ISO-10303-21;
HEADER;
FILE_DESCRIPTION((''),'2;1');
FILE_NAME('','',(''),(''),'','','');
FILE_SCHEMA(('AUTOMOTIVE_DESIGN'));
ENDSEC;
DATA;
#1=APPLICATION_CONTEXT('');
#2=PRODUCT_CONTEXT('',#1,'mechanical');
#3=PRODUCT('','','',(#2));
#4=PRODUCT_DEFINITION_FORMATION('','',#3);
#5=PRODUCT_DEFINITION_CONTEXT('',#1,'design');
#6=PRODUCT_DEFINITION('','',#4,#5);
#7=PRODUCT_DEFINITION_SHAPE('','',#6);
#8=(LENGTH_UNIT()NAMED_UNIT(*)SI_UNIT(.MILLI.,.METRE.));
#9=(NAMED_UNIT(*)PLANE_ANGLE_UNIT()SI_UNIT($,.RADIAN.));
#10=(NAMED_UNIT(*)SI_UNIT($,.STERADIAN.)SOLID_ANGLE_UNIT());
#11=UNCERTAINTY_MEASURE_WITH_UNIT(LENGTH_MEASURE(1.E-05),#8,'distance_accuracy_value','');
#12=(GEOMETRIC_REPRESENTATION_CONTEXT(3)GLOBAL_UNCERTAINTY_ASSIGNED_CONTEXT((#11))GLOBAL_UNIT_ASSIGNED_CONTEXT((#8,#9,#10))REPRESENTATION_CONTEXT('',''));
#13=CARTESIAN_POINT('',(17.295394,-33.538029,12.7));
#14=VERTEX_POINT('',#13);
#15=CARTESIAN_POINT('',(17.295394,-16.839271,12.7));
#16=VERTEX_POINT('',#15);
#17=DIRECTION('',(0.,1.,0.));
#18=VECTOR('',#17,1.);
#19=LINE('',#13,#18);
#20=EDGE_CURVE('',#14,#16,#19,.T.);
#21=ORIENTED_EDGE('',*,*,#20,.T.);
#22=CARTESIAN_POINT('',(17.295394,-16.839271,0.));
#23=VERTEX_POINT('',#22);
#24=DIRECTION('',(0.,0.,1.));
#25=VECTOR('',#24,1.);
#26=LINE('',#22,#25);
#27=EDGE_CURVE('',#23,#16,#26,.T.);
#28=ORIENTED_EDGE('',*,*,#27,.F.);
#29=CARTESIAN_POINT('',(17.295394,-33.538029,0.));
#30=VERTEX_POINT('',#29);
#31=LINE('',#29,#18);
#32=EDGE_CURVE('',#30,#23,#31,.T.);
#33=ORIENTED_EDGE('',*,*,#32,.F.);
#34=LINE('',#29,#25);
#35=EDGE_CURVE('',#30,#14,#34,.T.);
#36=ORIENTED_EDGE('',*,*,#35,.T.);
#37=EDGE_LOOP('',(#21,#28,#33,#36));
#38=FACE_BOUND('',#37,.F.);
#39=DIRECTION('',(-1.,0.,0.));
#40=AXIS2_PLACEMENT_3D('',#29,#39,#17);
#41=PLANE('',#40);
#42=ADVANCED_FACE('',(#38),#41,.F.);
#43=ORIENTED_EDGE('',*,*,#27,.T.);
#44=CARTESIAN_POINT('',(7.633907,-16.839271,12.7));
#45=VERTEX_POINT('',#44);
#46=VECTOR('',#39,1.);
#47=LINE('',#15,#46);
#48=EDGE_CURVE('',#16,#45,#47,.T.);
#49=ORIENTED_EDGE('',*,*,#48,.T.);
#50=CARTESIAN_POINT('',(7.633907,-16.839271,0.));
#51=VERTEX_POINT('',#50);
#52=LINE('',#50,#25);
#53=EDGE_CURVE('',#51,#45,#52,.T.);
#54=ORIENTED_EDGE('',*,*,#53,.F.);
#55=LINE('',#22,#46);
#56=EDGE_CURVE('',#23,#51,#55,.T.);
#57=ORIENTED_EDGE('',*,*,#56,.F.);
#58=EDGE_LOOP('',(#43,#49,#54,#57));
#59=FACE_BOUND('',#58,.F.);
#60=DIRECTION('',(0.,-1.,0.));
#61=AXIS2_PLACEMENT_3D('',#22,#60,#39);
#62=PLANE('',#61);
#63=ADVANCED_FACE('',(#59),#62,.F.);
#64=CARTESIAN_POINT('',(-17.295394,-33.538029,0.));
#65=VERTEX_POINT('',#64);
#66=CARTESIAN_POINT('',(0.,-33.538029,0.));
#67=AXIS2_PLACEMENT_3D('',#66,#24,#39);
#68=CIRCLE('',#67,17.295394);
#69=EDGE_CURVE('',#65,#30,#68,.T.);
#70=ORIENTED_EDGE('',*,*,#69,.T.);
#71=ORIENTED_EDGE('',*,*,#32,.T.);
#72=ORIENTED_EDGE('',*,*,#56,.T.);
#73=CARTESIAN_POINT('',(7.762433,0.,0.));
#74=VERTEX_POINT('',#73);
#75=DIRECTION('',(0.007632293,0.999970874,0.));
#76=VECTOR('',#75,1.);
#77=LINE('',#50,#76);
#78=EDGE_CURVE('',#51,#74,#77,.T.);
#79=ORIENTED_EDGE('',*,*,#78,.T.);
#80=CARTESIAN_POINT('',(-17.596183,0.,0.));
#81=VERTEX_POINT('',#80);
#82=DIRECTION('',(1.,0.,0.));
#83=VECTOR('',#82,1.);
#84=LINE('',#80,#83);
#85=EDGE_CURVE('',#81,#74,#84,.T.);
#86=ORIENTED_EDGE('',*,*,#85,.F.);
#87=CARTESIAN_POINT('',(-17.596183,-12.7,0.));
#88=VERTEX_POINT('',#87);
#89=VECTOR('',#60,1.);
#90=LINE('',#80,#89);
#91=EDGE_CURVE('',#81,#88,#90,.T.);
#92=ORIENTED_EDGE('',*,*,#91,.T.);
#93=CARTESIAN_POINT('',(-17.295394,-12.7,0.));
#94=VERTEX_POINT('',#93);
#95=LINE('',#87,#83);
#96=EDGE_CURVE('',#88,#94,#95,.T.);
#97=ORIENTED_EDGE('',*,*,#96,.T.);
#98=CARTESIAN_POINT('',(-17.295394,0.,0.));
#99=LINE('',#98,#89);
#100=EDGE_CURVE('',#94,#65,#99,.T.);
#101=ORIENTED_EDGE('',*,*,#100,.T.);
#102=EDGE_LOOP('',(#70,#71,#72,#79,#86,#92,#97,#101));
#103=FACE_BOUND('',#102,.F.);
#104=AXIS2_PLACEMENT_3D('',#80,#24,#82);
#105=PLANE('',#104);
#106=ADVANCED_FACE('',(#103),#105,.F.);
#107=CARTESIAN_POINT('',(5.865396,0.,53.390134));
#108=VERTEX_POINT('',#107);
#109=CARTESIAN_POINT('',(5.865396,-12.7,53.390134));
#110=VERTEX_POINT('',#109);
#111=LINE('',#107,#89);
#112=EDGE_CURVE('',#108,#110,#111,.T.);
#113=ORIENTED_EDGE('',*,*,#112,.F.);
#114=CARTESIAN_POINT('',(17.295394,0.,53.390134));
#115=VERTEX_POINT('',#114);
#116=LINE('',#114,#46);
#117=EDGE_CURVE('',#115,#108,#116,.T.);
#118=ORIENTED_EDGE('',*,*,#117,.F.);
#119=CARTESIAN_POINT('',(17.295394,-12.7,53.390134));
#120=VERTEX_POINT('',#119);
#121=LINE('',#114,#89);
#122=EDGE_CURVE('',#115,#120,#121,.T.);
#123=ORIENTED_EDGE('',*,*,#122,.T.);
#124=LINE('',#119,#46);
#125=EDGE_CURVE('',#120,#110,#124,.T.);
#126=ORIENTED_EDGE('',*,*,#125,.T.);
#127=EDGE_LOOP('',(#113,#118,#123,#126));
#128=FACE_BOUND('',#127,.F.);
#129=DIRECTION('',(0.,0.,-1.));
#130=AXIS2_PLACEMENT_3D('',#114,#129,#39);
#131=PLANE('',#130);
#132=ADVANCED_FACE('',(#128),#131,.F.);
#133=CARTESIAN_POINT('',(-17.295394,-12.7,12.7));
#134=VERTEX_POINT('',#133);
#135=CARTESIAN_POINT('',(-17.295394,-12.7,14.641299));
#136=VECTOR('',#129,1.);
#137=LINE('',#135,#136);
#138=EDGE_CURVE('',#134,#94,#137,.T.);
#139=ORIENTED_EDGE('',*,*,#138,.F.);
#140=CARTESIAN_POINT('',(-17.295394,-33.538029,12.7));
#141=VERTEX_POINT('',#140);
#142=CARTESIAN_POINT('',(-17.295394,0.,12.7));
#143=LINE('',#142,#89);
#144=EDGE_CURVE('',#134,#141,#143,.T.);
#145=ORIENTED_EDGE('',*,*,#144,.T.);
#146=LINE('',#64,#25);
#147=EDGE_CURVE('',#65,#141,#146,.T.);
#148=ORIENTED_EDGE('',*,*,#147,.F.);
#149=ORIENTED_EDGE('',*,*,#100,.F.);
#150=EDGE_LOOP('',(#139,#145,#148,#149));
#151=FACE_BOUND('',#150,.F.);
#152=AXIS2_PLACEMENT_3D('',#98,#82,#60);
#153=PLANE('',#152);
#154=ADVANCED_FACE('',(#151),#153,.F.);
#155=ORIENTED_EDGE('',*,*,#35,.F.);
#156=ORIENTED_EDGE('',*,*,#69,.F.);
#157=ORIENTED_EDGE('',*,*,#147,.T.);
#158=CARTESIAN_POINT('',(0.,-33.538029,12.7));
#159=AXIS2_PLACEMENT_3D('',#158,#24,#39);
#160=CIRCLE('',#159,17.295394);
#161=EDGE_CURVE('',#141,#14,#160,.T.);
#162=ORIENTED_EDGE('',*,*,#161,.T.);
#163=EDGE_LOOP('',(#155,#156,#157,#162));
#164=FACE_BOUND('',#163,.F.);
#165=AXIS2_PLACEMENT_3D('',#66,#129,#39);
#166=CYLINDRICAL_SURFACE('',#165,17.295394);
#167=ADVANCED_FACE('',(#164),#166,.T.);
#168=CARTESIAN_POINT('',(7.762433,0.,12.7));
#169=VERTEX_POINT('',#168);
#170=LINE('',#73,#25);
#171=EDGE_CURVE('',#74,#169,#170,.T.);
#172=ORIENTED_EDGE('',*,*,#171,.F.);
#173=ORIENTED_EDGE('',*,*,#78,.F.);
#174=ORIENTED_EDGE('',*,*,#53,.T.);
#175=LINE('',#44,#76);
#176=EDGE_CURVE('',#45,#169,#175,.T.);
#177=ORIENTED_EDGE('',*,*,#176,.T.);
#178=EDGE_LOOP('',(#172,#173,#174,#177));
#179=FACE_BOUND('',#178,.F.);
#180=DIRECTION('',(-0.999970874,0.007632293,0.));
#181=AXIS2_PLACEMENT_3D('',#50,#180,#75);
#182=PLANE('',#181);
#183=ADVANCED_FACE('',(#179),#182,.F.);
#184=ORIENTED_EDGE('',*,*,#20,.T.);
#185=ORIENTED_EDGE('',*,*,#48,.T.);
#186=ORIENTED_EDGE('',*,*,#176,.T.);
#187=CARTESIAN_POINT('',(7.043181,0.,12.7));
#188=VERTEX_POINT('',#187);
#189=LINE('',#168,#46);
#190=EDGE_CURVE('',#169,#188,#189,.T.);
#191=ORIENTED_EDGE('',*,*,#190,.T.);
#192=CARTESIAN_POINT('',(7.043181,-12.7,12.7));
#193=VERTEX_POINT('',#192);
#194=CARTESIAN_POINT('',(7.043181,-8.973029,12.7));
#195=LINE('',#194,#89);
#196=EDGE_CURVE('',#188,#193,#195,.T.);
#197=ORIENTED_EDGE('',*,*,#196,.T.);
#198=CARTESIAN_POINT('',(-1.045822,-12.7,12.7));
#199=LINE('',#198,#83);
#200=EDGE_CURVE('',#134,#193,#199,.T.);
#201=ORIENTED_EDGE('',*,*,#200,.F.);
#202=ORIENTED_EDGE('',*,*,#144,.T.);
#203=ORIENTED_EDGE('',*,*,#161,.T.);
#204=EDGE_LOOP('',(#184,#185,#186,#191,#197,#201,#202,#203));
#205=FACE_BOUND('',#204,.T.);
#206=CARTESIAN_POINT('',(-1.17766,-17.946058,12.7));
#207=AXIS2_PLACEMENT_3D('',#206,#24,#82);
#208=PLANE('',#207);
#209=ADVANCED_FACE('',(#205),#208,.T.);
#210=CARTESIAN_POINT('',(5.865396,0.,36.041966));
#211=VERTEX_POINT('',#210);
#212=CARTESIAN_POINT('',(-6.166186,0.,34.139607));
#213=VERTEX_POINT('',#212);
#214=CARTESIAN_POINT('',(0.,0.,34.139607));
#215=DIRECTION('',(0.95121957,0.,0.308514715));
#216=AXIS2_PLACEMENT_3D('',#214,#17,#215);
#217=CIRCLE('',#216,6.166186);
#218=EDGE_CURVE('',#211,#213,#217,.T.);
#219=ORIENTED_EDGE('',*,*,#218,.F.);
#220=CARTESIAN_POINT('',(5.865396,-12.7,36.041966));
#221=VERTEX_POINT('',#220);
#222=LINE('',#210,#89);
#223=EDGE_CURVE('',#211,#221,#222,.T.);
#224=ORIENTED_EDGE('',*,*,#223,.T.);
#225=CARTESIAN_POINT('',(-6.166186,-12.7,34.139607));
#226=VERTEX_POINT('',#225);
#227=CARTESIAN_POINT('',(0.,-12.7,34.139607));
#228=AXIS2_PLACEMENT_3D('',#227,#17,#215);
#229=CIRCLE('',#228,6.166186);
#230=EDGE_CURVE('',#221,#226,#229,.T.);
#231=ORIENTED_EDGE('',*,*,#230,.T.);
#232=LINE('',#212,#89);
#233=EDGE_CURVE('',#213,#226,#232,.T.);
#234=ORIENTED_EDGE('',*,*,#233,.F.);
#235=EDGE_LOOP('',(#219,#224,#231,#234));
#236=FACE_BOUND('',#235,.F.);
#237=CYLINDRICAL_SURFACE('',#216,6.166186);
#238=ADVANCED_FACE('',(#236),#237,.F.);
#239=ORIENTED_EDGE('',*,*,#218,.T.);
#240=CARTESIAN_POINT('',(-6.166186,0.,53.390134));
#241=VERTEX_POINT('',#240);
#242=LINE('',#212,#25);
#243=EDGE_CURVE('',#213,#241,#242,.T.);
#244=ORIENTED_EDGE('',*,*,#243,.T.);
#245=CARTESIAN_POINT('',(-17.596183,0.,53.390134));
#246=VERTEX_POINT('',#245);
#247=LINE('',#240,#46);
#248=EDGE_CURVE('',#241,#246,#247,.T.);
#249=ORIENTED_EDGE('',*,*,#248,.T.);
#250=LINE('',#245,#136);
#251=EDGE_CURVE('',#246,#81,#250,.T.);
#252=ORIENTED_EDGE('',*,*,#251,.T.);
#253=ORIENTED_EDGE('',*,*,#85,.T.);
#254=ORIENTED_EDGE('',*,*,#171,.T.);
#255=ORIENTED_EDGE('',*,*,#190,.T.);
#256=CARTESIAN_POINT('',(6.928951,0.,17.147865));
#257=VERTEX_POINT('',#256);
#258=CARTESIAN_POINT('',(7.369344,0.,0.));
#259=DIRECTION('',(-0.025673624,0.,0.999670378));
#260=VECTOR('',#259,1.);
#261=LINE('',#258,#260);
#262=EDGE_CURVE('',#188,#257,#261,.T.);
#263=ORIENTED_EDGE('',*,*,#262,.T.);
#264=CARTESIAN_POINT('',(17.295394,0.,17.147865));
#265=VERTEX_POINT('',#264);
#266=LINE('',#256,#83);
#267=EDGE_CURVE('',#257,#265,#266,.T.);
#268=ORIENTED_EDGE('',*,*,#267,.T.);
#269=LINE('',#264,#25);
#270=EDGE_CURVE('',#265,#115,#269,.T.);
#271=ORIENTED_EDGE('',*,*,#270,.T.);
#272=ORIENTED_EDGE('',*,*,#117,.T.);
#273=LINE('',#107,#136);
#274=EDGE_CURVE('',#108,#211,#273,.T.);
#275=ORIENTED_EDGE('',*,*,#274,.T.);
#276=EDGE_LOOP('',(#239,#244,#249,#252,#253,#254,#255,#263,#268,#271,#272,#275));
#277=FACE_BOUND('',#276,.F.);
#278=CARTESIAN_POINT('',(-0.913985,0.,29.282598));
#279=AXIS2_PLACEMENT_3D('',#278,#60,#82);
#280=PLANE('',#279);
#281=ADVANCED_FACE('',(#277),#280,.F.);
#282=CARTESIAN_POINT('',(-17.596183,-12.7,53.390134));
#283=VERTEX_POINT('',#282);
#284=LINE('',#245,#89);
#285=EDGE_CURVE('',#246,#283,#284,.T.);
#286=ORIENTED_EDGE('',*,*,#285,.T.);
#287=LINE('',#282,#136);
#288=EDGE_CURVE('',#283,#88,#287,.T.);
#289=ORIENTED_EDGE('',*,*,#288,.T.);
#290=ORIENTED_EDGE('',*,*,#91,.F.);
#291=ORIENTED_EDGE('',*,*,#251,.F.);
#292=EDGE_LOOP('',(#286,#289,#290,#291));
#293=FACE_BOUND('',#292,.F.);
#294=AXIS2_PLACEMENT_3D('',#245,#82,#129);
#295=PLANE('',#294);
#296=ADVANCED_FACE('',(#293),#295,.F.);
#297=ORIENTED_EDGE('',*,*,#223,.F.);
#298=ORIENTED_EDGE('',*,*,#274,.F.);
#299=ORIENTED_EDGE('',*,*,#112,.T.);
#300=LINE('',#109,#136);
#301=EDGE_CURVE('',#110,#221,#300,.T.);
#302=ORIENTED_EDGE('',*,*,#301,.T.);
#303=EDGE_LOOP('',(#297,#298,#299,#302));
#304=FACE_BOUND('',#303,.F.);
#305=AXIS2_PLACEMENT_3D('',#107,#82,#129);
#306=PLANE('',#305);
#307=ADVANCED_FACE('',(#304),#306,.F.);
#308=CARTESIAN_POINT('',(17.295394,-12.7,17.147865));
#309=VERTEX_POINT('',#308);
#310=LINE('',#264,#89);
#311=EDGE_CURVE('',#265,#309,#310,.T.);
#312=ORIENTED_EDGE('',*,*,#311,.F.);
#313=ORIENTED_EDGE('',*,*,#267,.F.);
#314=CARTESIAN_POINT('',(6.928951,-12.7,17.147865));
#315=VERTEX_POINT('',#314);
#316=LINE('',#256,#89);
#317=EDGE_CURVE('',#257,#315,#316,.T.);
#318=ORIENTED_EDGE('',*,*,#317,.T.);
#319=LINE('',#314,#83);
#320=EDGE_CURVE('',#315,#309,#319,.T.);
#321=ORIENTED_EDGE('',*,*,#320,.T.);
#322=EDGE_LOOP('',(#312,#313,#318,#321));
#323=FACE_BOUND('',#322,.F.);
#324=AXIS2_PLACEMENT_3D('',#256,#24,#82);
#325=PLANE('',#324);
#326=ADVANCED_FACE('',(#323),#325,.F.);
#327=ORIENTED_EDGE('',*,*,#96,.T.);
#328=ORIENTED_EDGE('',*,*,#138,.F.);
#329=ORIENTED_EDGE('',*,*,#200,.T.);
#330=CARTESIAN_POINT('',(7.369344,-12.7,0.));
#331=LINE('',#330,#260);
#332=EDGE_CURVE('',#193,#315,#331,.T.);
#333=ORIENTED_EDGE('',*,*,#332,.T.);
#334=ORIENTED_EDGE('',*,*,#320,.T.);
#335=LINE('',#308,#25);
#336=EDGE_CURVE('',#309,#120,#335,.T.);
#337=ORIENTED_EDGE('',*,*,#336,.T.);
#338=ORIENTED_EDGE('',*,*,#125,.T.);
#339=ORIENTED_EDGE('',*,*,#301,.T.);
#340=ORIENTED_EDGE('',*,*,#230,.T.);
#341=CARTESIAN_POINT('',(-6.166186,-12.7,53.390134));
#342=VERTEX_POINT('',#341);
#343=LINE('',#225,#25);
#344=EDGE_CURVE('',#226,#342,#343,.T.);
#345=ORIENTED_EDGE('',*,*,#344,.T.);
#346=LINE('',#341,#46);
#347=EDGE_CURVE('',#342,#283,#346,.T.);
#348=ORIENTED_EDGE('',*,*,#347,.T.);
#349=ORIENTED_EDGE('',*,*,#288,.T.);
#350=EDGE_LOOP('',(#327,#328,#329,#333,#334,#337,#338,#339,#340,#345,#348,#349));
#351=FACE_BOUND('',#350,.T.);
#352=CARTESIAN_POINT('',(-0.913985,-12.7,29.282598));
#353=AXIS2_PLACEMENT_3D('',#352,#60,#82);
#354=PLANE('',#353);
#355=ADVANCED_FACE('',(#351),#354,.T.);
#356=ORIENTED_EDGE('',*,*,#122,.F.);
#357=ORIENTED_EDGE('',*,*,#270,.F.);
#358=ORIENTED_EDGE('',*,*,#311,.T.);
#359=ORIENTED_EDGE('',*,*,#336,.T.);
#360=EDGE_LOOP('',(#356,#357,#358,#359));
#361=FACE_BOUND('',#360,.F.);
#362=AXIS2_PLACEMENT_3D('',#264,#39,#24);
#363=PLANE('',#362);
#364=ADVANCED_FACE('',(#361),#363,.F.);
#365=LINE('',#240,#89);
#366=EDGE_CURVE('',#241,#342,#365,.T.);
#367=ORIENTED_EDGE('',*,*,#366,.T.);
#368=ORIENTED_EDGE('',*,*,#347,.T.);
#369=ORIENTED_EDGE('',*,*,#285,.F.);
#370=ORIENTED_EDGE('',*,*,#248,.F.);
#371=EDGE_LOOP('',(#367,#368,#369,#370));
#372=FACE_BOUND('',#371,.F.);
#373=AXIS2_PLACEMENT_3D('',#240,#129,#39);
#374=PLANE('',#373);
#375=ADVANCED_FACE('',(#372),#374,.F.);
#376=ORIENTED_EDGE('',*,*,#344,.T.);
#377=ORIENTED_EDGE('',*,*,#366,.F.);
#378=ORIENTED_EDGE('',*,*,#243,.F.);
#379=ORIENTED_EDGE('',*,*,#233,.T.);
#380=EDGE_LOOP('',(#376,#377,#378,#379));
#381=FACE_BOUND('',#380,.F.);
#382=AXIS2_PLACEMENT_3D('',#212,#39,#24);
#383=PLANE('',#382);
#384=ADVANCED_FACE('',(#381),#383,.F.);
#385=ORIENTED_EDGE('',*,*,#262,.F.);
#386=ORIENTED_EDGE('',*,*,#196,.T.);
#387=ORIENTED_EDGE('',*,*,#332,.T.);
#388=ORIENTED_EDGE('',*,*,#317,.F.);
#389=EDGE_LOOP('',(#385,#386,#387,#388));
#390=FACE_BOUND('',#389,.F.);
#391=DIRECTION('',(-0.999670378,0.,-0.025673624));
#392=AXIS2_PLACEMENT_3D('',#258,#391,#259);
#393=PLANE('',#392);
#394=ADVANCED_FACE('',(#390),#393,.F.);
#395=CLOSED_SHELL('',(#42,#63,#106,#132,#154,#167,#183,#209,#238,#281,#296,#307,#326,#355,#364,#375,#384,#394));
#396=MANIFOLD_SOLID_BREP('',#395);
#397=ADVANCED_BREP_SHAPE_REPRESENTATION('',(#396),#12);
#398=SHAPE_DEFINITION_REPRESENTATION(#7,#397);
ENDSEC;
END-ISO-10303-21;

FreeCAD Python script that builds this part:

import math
import FreeCAD as App
import Part
import Sketcher
Q = App.Units.Quantity

doc = App.newDocument("Part")
body = doc.addObject("PartDesign::Body", "Body")

# Sketch on XY plane
sketch1 = body.newObject("Sketcher::SketchObject", "Sketch")
sketch1.AttachmentSupport = (doc.getObject("XY_Plane"), [""])
sketch1.MapMode = "FlatFace"
sketch1.addGeometry([
    Part.LineSegment(App.Vector(-17.295394, 0, 0), App.Vector(-17.295394, -33.538029, 0)),  # 0
    Part.ArcOfCircle(Part.Circle(App.Vector(0, -33.538029, 0), App.Vector(0, 0, 1), 17.295394), math.radians(180), math.radians(360)),  # 1
    Part.LineSegment(App.Vector(17.295394, -33.538029, 0), App.Vector(17.295394, -16.839271, 0)),  # 2
    Part.LineSegment(App.Vector(17.295394, -16.839271, 0), App.Vector(7.633907, -16.839271, 0)),  # 3
    Part.LineSegment(App.Vector(7.633907, -16.839271, 0), App.Vector(7.762433, 0, 0)),  # 4
    Part.LineSegment(App.Vector(7.762433, 0, 0), App.Vector(-17.295394, 0, 0)),  # 5
], False)
sketch1.addConstraint([
    Sketcher.Constraint("Coincident", 0, 2, 1, 1),
    Sketcher.Constraint("Coincident", 1, 2, 2, 1),
    Sketcher.Constraint("Coincident", 2, 2, 3, 1),
    Sketcher.Constraint("Coincident", 3, 2, 4, 1),
    Sketcher.Constraint("Coincident", 4, 2, 5, 1),
    Sketcher.Constraint("Coincident", 5, 2, 0, 1),
    Sketcher.Constraint("Vertical", 0),
    Sketcher.Constraint("Vertical", 2),
    Sketcher.Constraint("Horizontal", 3),
    Sketcher.Constraint("Horizontal", 5),
    Sketcher.Constraint("PointOnObject", 1, 3, -2),
    Sketcher.Constraint("PointOnObject", 4, 2, -1),
    Sketcher.Constraint("Radius", 1, 17.295394),
    Sketcher.Constraint("DistanceY", 0, 2, 0, 1, 33.538029),
    Sketcher.Constraint("DistanceY", 2, 1, 2, 2, 16.698758),
    Sketcher.Constraint("DistanceX", 0, 2, 3, 2, 24.929301),
    Sketcher.Constraint("Distance", 4, 16.839761),
    Sketcher.Constraint("DistanceX", 5, 2, 5, 1, 25.057827),
    Sketcher.Constraint("DistanceY", 1, 3, -1, 1, 33.538029),
])
pad1 = body.newObject("PartDesign::Pad", "Pad")
pad1.Profile = sketch1
pad1.Length = Q("0.5 in")

# Sketch on XZ plane
sketch2 = body.newObject("Sketcher::SketchObject", "Sketch001")
sketch2.AttachmentSupport = (doc.getObject("XZ_Plane"), [""])
sketch2.MapMode = "FlatFace"
sketch2.addGeometry([
    Part.LineSegment(App.Vector(-18, 0, 0), App.Vector(7, 0, 0)),  # 0
    Part.LineSegment(App.Vector(7, 0, 0), App.Vector(7, 17, 0)),  # 1
    Part.LineSegment(App.Vector(7, 17, 0), App.Vector(17, 17, 0)),  # 2
    Part.LineSegment(App.Vector(17, 17, 0), App.Vector(17, 53, 0)),  # 3
    Part.LineSegment(App.Vector(17, 53, 0), App.Vector(6, 53, 0)),  # 4
    Part.LineSegment(App.Vector(6, 53, 0), App.Vector(6, 36, 0)),  # 5
    Part.ArcOfCircle(Part.Circle(App.Vector(0, 34, 0), App.Vector(0, 0, 1), 6), math.radians(-180), math.radians(18)),  # 6
    Part.LineSegment(App.Vector(-6, 34, 0), App.Vector(-6, 53, 0)),  # 7
    Part.LineSegment(App.Vector(-6, 53, 0), App.Vector(-18, 53, 0)),  # 8
    Part.LineSegment(App.Vector(-18, 53, 0), App.Vector(-18, 0, 0)),  # 9
], False)
sketch2.addConstraint([
    Sketcher.Constraint("Coincident", 0, 2, 1, 1),
    Sketcher.Constraint("Coincident", 1, 2, 2, 1),
    Sketcher.Constraint("Coincident", 2, 2, 3, 1),
    Sketcher.Constraint("Coincident", 3, 2, 4, 1),
    Sketcher.Constraint("Coincident", 4, 2, 5, 1),
    Sketcher.Constraint("Coincident", 5, 2, 6, 2),
    Sketcher.Constraint("Tangent", 6, 1, 7, 1),
    Sketcher.Constraint("Coincident", 7, 2, 8, 1),
    Sketcher.Constraint("Coincident", 8, 2, 9, 1),
    Sketcher.Constraint("Coincident", 9, 2, 0, 1),
    Sketcher.Constraint("Horizontal", 0),
    Sketcher.Constraint("Horizontal", 2),
    Sketcher.Constraint("Vertical", 3),
    Sketcher.Constraint("Horizontal", 4),
    Sketcher.Constraint("Vertical", 5),
    Sketcher.Constraint("Vertical", 7),
    Sketcher.Constraint("Horizontal", 8),
    Sketcher.Constraint("Vertical", 9),
    Sketcher.Constraint("PointOnObject", 6, 3, -2),
    Sketcher.Constraint("PointOnObject", 0, 2, -1),
    Sketcher.Constraint("Horizontal", 4, 2, 7, 2),
    Sketcher.Constraint("Equal", 4, 8),
    Sketcher.Constraint("DistanceX", 4, 2, 4, 1, Q("0.4499999 in")),
    Sketcher.Constraint("Radius", 6, 6.166186),
    Sketcher.Constraint("DistanceY", 3, 1, 3, 2, 36.242269),
    Sketcher.Constraint("DistanceY", 5, 2, 5, 1, 17.348168),
    Sketcher.Constraint("Distance", 1, 17.153519),
    Sketcher.Constraint("DistanceX", 0, 1, 0, 2, 24.965527),
    Sketcher.Constraint("DistanceX", 2, 1, 2, 2, 10.366443),
    Sketcher.Constraint("DistanceY", 7, 1, 7, 2, 19.250527),
])
pad2 = body.newObject("PartDesign::Pad", "Pad001")
pad2.Profile = sketch2
pad2.Length = Q("0.5 in")

doc.recompute()
